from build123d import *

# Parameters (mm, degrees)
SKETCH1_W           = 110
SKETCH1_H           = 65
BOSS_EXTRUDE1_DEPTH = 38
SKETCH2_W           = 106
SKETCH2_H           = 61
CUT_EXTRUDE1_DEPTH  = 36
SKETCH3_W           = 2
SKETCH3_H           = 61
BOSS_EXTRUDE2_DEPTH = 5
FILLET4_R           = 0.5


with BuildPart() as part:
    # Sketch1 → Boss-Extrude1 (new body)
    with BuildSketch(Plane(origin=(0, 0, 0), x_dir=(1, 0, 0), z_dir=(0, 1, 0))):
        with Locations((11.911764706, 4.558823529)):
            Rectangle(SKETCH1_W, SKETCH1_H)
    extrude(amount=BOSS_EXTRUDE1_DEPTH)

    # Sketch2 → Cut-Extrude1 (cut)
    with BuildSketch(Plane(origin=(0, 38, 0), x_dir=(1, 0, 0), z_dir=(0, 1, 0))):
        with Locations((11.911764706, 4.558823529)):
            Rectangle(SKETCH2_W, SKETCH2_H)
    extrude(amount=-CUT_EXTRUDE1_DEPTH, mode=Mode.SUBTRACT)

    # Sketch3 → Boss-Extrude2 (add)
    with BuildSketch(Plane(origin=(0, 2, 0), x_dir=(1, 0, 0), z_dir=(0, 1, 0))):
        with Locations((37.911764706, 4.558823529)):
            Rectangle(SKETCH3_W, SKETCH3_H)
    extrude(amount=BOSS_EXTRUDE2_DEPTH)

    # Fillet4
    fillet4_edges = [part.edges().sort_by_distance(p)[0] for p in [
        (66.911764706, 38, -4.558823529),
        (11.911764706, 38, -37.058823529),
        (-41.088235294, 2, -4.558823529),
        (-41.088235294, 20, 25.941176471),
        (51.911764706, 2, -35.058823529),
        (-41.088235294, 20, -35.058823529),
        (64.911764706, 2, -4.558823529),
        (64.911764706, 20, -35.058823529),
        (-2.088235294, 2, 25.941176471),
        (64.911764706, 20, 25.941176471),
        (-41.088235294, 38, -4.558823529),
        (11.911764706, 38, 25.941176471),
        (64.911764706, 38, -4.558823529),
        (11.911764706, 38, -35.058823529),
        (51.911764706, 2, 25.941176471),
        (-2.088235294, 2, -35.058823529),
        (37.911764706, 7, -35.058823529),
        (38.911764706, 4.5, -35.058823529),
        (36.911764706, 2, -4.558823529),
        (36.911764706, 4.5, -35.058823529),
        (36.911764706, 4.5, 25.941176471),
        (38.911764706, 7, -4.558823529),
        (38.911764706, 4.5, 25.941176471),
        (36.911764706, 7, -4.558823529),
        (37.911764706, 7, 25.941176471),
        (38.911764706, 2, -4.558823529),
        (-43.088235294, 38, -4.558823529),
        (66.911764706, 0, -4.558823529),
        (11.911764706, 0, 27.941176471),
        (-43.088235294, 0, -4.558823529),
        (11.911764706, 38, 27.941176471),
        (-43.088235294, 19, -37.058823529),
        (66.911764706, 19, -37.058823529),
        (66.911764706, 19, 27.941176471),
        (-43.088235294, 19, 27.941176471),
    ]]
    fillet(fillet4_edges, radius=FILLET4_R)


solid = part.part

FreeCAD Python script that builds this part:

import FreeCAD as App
import Part
import Sketcher
from FreeCAD import Vector


def edges_at(feature, points):
    """Names of the edges that pass closest to the given points."""
    edges = feature.Shape.Edges
    near = lambda p: min(range(len(edges)), key=lambda i: edges[i].distToShape(Part.Vertex(*p))[0])
    return sorted({f"Edge{near(p) + 1}" for p in points})


def add_polygon(sketch, points):
    """Adds a closed chain of lines whose ends are joined by coincident constraints."""
    first, n = sketch.GeometryCount, len(points)
    for a, b in zip(points, points[1:] + points[:1]):
        sketch.addGeometry(Part.LineSegment(App.Vector(*a, 0), App.Vector(*b, 0)), False)
    for i in range(n):
        sketch.addConstraint(Sketcher.Constraint("Coincident", first + i, 2, first + (i + 1) % n, 1))

doc = App.newDocument("Part")
body = doc.addObject("PartDesign::Body", "Body")

sketch1 = doc.addObject("Sketcher::SketchObject", "Sketch")
body.addObject(sketch1)
sketch1.AttachmentSupport = (doc.XZ_Plane, [""])
sketch1.MapMode = "FlatFace"
add_polygon(sketch1, [(-43, -37), (-43, 28), (67, 28), (67, -37)])
sketch1.addConstraint([
    Sketcher.Constraint("Vertical", 0),
    Sketcher.Constraint("Horizontal", 1),
    Sketcher.Constraint("Vertical", 2),
    Sketcher.Constraint("Horizontal", 3),
    Sketcher.Constraint("DistanceX", 1, 1, 1, 2, 110.0),
    Sketcher.Constraint("DistanceY", 0, 1, 0, 2, 65.0),
    Sketcher.Constraint("DistanceX", 0, 2, -1, 1, 43.088235),
    Sketcher.Constraint("DistanceY", -1, 1, 0, 2, 27.941176),
])
pad1 = doc.addObject("PartDesign::Pad", "Pad")
body.addObject(pad1)
pad1.Profile = sketch1
pad1.Length = 38
pad1.Reversed = True

sketch2 = doc.addObject("Sketcher::SketchObject", "Sketch001")
body.addObject(sketch2)
sketch2.AttachmentSupport = (doc.XZ_Plane, [""])
sketch2.MapMode = "FlatFace"
sketch2.AttachmentOffset = App.Placement(Vector(0, 0, -38), App.Rotation())
add_polygon(sketch2, [(-41, -35), (-41, 26), (65, 26), (65, -35)])
sketch2.addConstraint([
    Sketcher.Constraint("Vertical", 0),
    Sketcher.Constraint("Horizontal", 1),
    Sketcher.Constraint("Vertical", 2),
    Sketcher.Constraint("Horizontal", 3),
    Sketcher.Constraint("DistanceX", 1, 1, 1, 2, 106.0),
    Sketcher.Constraint("DistanceY", 0, 1, 0, 2, 61.0),
    Sketcher.Constraint("DistanceX", 0, 2, -1, 1, 41.088235),
    Sketcher.Constraint("DistanceY", -1, 1, 0, 2, 25.941176),
])
pocket1 = doc.addObject("PartDesign::Pocket", "Pocket")
body.addObject(pocket1)
pocket1.Profile = sketch2
pocket1.Length = 36
pocket1.Reversed = True

sketch3 = doc.addObject("Sketcher::SketchObject", "Sketch002")
body.addObject(sketch3)
sketch3.AttachmentSupport = (doc.XZ_Plane, [""])
sketch3.MapMode = "FlatFace"
sketch3.AttachmentOffset = App.Placement(Vector(0, 0, -2), App.Rotation())
add_polygon(sketch3, [(36.9, -35.1), (36.9, 25.9), (38.9, 25.9), (38.9, -35.1)])
sketch3.addConstraint([
    Sketcher.Constraint("Vertical", 0),
    Sketcher.Constraint("Horizontal", 1),
    Sketcher.Constraint("Vertical", 2),
    Sketcher.Constraint("Horizontal", 3),
    Sketcher.Constraint("DistanceX", 1, 1, 1, 2, 2.0),
    Sketcher.Constraint("DistanceY", 0, 1, 0, 2, 61.0),
    Sketcher.Constraint("DistanceX", -1, 1, 0, 2, 36.911765),
    Sketcher.Constraint("DistanceY", -1, 1, 0, 2, 25.941176),
])
pad2 = doc.addObject("PartDesign::Pad", "Pad001")
body.addObject(pad2)
pad2.Profile = sketch3
pad2.Length = 5
pad2.Reversed = True
doc.recompute()

fillet = doc.addObject("PartDesign::Fillet", "Fillet")
body.addObject(fillet)
fillet.Base = (pad2, edges_at(pad2, [
    (66.912, 38, -4.559),
    (11.912, 38, -37.059),
    (-41.088, 2, -4.559),
    (-41.088, 20, 25.941),
    (51.912, 2, -35.059),
    (-41.088, 20, -35.059),
    (64.912, 2, -4.559),
    (64.912, 20, -35.059),
    (-2.088, 2, 25.941),
    (64.912, 20, 25.941),
    (-41.088, 38, -4.559),
    (11.912, 38, 25.941),
    (64.912, 38, -4.559),
    (11.912, 38, -35.059),
    (51.912, 2, 25.941),
    (-2.088, 2, -35.059),
    (37.912, 7, -35.059),
    (38.912, 4.5, -35.059),
    (36.912, 2, -4.559),
    (36.912, 4.5, -35.059),
    (36.912, 4.5, 25.941),
    (38.912, 7, -4.559),
    (38.912, 4.5, 25.941),
    (36.912, 7, -4.559),
    (37.912, 7, 25.941),
    (38.912, 2, -4.559),
    (-43.088, 38, -4.559),
    (66.912, 0, -4.559),
    (11.912, 0, 27.941),
    (-43.088, 0, -4.559),
    (11.912, 38, 27.941),
    (-43.088, 19, -37.059),
    (66.912, 19, -37.059),
    (66.912, 19, 27.941),
    (-43.088, 19, 27.941),
]))
fillet.Radius = 0.5

doc.recompute()
